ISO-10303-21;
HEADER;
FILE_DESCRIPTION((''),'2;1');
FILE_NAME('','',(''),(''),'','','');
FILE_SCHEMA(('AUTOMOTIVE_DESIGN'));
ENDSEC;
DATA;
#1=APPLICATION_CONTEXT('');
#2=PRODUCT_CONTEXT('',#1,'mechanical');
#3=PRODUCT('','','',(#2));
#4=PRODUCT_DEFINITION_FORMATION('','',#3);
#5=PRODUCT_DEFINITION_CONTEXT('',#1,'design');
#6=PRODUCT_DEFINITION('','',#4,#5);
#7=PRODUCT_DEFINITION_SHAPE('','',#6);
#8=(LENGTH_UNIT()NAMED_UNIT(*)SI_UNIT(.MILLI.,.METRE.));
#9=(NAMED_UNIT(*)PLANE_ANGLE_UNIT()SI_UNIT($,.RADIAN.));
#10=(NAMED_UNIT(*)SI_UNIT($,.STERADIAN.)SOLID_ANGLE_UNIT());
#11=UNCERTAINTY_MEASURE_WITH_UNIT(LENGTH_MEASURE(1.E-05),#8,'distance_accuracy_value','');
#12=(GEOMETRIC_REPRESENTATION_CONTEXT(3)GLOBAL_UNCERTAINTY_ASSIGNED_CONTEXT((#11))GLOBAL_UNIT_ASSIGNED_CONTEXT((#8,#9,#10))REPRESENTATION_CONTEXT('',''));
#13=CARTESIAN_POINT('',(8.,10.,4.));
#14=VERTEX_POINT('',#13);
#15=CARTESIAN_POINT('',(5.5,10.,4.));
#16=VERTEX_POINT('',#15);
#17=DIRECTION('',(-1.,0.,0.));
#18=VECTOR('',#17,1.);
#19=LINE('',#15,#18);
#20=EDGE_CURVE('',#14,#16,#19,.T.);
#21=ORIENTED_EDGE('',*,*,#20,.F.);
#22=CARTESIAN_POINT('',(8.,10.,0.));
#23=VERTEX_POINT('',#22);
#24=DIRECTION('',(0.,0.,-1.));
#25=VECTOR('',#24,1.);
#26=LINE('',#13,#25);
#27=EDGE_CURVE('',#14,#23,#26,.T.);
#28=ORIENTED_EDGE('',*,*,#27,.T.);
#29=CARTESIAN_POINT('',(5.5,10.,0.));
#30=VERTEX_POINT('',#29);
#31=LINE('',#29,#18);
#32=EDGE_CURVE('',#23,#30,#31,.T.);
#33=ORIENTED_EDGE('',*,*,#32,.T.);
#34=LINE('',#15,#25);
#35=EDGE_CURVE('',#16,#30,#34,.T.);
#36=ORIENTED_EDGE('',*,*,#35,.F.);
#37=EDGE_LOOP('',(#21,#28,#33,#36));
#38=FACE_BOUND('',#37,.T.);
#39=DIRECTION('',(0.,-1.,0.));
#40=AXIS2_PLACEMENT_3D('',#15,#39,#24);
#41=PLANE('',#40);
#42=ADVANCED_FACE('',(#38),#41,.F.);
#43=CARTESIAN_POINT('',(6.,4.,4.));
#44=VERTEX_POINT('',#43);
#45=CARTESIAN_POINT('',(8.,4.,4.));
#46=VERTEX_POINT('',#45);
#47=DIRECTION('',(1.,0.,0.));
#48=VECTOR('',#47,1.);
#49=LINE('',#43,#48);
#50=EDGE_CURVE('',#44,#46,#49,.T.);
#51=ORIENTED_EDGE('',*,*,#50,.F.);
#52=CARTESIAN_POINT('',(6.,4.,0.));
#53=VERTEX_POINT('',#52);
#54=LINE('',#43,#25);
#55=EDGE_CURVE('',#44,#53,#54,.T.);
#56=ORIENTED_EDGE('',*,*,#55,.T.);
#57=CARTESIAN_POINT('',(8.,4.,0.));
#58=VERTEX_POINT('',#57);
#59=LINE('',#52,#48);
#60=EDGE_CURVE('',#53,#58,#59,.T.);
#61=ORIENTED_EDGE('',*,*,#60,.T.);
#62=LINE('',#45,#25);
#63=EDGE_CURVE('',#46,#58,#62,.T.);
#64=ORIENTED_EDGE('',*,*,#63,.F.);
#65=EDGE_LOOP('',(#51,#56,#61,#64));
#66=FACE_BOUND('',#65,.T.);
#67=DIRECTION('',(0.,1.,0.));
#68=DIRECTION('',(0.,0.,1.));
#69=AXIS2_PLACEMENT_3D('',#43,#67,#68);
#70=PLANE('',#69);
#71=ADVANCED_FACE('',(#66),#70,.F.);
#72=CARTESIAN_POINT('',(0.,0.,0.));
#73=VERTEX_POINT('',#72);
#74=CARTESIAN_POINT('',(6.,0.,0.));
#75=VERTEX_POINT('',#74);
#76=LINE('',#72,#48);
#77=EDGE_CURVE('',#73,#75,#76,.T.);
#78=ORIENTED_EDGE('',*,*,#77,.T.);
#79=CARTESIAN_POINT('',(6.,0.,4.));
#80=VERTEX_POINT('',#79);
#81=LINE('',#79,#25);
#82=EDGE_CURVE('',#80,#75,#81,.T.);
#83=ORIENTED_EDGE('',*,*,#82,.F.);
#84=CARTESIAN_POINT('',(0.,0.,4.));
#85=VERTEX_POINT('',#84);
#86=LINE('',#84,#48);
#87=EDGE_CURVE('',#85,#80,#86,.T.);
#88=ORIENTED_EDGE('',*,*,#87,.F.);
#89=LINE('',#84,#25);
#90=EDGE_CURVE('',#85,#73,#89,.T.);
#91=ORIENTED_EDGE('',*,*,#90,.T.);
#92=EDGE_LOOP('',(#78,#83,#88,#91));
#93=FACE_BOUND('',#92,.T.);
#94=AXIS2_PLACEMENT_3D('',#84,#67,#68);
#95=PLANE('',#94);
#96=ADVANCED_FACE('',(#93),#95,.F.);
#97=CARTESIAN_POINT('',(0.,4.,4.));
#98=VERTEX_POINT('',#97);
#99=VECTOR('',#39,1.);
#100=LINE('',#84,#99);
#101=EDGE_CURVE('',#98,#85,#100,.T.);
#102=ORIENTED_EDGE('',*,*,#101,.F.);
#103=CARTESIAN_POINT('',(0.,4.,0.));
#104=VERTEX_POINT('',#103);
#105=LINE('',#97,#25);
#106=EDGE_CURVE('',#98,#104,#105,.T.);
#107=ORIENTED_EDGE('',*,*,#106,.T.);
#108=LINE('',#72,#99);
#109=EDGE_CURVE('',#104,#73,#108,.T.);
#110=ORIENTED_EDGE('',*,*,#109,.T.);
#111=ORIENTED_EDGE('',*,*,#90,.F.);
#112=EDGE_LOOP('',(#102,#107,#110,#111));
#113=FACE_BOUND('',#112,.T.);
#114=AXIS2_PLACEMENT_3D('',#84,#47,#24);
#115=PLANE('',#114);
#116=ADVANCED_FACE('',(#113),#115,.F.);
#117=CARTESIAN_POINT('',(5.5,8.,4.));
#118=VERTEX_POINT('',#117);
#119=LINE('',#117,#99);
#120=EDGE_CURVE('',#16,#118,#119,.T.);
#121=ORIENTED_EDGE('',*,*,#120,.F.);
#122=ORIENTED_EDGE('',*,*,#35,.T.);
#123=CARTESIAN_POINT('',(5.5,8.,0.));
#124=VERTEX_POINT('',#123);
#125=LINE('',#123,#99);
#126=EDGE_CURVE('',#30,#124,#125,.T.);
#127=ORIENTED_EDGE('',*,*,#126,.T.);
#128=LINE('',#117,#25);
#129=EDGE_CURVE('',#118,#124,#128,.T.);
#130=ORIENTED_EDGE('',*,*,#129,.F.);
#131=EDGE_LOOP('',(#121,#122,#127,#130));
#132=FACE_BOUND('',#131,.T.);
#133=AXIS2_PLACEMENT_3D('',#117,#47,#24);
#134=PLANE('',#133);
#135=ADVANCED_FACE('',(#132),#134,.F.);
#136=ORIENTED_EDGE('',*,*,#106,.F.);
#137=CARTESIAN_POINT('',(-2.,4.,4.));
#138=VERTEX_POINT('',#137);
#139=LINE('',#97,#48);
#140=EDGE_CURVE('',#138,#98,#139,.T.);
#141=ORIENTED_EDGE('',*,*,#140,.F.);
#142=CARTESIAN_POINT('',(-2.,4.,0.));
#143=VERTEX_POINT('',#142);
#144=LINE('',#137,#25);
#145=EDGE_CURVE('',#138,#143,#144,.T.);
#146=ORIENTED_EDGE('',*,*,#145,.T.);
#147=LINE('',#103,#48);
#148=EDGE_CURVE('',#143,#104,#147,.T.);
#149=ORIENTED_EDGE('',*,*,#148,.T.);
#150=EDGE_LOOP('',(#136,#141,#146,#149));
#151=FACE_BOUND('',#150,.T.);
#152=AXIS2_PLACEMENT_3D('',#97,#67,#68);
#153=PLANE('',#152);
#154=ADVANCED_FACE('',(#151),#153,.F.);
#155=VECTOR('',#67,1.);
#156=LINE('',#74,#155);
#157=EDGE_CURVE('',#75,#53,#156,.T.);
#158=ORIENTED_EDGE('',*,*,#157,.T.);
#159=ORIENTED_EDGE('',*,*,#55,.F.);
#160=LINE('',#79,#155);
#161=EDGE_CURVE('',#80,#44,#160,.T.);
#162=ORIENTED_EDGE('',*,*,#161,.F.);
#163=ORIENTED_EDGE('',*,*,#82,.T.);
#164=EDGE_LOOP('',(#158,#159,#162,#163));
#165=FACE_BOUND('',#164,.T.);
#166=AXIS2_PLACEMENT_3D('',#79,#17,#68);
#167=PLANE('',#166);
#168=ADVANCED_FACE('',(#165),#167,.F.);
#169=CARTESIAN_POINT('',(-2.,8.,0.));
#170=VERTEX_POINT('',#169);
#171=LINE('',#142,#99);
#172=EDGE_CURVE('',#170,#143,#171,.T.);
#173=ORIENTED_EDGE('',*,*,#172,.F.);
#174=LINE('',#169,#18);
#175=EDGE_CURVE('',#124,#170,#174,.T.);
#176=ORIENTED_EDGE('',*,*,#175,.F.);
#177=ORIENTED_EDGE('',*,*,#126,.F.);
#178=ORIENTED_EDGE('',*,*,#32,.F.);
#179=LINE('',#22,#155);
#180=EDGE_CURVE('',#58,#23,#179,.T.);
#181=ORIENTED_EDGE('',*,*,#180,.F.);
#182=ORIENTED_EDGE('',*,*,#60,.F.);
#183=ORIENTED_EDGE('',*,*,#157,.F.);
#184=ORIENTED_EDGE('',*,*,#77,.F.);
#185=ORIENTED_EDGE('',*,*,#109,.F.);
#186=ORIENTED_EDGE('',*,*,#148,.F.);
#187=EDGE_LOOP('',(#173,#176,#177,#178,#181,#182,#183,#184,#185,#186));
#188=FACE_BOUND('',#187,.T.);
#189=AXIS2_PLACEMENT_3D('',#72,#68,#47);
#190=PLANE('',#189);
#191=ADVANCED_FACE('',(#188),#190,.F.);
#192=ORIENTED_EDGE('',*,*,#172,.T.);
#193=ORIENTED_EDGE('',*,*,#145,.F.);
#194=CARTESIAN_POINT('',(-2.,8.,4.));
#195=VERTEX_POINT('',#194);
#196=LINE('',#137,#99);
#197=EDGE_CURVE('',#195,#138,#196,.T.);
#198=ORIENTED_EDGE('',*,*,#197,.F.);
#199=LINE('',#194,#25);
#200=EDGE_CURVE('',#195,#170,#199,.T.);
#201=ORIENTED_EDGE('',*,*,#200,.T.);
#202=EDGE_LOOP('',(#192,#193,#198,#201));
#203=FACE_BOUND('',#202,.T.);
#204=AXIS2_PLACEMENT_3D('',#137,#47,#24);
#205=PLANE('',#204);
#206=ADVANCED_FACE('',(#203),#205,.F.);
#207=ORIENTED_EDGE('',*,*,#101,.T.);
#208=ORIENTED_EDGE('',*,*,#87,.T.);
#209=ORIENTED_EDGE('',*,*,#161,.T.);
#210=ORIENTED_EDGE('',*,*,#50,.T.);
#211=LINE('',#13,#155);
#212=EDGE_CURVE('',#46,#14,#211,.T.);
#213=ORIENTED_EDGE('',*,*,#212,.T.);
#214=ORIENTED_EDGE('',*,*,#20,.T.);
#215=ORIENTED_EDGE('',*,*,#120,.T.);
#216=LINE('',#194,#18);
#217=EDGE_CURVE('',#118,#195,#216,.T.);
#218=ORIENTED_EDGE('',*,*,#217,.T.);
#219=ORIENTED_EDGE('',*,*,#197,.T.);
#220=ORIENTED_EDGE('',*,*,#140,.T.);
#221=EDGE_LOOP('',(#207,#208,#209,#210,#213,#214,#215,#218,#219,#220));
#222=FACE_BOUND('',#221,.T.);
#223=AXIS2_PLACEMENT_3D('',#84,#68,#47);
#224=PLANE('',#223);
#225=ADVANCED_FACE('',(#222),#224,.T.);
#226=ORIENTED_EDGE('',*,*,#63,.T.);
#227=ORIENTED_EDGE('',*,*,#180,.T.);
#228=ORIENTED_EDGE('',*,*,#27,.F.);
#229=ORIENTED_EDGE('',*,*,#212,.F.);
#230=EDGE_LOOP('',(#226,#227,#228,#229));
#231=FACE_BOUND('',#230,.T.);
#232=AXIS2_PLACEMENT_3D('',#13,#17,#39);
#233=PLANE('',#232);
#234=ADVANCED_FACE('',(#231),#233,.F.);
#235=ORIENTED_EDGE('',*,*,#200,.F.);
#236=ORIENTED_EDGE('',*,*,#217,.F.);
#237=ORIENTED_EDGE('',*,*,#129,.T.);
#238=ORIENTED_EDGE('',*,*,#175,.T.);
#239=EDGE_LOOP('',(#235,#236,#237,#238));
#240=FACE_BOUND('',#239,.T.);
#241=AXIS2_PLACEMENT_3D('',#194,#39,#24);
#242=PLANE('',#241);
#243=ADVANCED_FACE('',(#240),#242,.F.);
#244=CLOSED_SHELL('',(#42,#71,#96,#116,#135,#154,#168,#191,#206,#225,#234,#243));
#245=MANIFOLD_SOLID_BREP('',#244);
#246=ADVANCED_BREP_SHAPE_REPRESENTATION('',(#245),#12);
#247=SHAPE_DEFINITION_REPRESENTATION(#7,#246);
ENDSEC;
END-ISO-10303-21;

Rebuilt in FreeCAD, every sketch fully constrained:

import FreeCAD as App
import Part
import Sketcher
Q = App.Units.Quantity


def add_polygon(sketch, points):
    """Adds a closed chain of lines whose ends are joined by coincident constraints."""
    first, n = sketch.GeometryCount, len(points)
    for a, b in zip(points, points[1:] + points[:1]):
        sketch.addGeometry(Part.LineSegment(App.Vector(*a, 0), App.Vector(*b, 0)), False)
    for i in range(n):
        sketch.addConstraint(Sketcher.Constraint("Coincident", first + i, 2, first + (i + 1) % n, 1))

doc = App.newDocument("Part")
body = doc.addObject("PartDesign::Body", "Body")

# Sketch on XY plane
sketch1 = doc.addObject("Sketcher::SketchObject", "Sketch")
body.addObject(sketch1)
sketch1.AttachmentSupport = (doc.XY_Plane, [""])
sketch1.MapMode = "FlatFace"
add_polygon(sketch1, [(0, 0), (6, 0), (6, 4), (8, 4), (8, 10), (5.5, 10), (5.5, 8), (-2, 8), (-2, 4), (0, 4)])  # lines 0-9
sketch1.addConstraint([
    Sketcher.Constraint("Horizontal", 0),
    Sketcher.Constraint("Vertical", 1),
    Sketcher.Constraint("Horizontal", 2),
    Sketcher.Constraint("Vertical", 3),
    Sketcher.Constraint("Horizontal", 4),
    Sketcher.Constraint("Vertical", 5),
    Sketcher.Constraint("Horizontal", 6),
    Sketcher.Constraint("Vertical", 7),
    Sketcher.Constraint("Horizontal", 8),
    Sketcher.Constraint("Vertical", 9),
    Sketcher.Constraint("Coincident", 9, 2, -1, 1),
    Sketcher.Constraint("Horizontal", 2, 2, 7, 2),
    Sketcher.Constraint("Equal", 2, 8),
    Sketcher.Constraint("Equal", 0, 3),
    Sketcher.Constraint("Equal", 8, 5),
    Sketcher.Constraint("Equal", 1, 7),
    Sketcher.Constraint("DistanceX", 0, 1, 0, 2, Q("6 mm")),
    Sketcher.Constraint("DistanceX", 2, 1, 2, 2, Q("2 mm")),
    Sketcher.Constraint("DistanceX", 4, 2, 4, 1, Q("2.5 mm")),
])
pad1 = doc.addObject("PartDesign::Pad", "Pad")
body.addObject(pad1)
pad1.Profile = sketch1
pad1.Length = 4

doc.recompute()
